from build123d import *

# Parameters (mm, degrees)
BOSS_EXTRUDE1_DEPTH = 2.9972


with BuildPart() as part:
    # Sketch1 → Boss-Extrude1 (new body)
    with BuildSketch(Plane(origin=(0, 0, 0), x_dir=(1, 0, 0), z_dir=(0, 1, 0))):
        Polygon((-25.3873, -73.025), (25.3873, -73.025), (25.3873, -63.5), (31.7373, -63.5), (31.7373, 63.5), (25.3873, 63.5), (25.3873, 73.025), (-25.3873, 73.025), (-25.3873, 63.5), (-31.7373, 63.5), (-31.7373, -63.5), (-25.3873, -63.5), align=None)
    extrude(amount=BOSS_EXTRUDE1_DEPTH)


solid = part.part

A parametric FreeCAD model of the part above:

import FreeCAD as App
import Part
import Sketcher
from FreeCAD import Vector
Q = App.Units.Quantity


def add_polygon(sketch, points):
    """Adds a closed chain of lines whose ends are joined by coincident constraints."""
    first, n = sketch.GeometryCount, len(points)
    for a, b in zip(points, points[1:] + points[:1]):
        sketch.addGeometry(Part.LineSegment(App.Vector(*a, 0), App.Vector(*b, 0)), False)
    for i in range(n):
        sketch.addConstraint(Sketcher.Constraint("Coincident", first + i, 2, first + (i + 1) % n, 1))

doc = App.newDocument("Part")
body = doc.addObject("PartDesign::Body", "Body")

# Sketch on XZ plane
sketch1 = body.newObject("Sketcher::SketchObject", "Sketch")
sketch1.AttachmentSupport = (doc.getObject("XZ_Plane"), [""])
sketch1.MapMode = "FlatFace"
add_polygon(sketch1, [(-25, 73), (25, 73), (25, 64), (32, 64), (32, -64), (25, -64), (25, -73), (-25, -73), (-25, -64), (-32, -64), (-32, 64), (-25, 64)])  # lines 0-11
sketch1.addConstraint([
    Sketcher.Constraint("Horizontal", 0),
    Sketcher.Constraint("Vertical", 1),
    Sketcher.Constraint("Horizontal", 2),
    Sketcher.Constraint("Vertical", 3),
    Sketcher.Constraint("Horizontal", 4),
    Sketcher.Constraint("Vertical", 5),
    Sketcher.Constraint("Horizontal", 6),
    Sketcher.Constraint("Vertical", 7),
    Sketcher.Constraint("Horizontal", 8),
    Sketcher.Constraint("Vertical", 9),
    Sketcher.Constraint("Horizontal", 10),
    Sketcher.Constraint("Vertical", 11),
    Sketcher.Constraint("Symmetric", 0, 2, 6, 2, -1, 1),
    Sketcher.Constraint("Symmetric", 2, 2, 8, 2, -1, 1),
    Sketcher.Constraint("Symmetric", 4, 2, 10, 2, -1, 1),
    Sketcher.Constraint("Symmetric", 4, 2, 7, 2, -2),
    Sketcher.Constraint("DistanceY", 3, 2, 3, 1, Q("5 in")),
    Sketcher.Constraint("DistanceX", 2, 1, 2, 2, Q("0.25 in")),
    Sketcher.Constraint("DistanceX", 0, 1, 0, 2, Q("1.999 in")),
    Sketcher.Constraint("DistanceY", 1, 2, 1, 1, Q("0.375 in")),
])
pad1 = body.newObject("PartDesign::Pad", "Pad")
pad1.Profile = sketch1
pad1.Length = Q("0.118 in")
pad1.Reversed = True

doc.recompute()
